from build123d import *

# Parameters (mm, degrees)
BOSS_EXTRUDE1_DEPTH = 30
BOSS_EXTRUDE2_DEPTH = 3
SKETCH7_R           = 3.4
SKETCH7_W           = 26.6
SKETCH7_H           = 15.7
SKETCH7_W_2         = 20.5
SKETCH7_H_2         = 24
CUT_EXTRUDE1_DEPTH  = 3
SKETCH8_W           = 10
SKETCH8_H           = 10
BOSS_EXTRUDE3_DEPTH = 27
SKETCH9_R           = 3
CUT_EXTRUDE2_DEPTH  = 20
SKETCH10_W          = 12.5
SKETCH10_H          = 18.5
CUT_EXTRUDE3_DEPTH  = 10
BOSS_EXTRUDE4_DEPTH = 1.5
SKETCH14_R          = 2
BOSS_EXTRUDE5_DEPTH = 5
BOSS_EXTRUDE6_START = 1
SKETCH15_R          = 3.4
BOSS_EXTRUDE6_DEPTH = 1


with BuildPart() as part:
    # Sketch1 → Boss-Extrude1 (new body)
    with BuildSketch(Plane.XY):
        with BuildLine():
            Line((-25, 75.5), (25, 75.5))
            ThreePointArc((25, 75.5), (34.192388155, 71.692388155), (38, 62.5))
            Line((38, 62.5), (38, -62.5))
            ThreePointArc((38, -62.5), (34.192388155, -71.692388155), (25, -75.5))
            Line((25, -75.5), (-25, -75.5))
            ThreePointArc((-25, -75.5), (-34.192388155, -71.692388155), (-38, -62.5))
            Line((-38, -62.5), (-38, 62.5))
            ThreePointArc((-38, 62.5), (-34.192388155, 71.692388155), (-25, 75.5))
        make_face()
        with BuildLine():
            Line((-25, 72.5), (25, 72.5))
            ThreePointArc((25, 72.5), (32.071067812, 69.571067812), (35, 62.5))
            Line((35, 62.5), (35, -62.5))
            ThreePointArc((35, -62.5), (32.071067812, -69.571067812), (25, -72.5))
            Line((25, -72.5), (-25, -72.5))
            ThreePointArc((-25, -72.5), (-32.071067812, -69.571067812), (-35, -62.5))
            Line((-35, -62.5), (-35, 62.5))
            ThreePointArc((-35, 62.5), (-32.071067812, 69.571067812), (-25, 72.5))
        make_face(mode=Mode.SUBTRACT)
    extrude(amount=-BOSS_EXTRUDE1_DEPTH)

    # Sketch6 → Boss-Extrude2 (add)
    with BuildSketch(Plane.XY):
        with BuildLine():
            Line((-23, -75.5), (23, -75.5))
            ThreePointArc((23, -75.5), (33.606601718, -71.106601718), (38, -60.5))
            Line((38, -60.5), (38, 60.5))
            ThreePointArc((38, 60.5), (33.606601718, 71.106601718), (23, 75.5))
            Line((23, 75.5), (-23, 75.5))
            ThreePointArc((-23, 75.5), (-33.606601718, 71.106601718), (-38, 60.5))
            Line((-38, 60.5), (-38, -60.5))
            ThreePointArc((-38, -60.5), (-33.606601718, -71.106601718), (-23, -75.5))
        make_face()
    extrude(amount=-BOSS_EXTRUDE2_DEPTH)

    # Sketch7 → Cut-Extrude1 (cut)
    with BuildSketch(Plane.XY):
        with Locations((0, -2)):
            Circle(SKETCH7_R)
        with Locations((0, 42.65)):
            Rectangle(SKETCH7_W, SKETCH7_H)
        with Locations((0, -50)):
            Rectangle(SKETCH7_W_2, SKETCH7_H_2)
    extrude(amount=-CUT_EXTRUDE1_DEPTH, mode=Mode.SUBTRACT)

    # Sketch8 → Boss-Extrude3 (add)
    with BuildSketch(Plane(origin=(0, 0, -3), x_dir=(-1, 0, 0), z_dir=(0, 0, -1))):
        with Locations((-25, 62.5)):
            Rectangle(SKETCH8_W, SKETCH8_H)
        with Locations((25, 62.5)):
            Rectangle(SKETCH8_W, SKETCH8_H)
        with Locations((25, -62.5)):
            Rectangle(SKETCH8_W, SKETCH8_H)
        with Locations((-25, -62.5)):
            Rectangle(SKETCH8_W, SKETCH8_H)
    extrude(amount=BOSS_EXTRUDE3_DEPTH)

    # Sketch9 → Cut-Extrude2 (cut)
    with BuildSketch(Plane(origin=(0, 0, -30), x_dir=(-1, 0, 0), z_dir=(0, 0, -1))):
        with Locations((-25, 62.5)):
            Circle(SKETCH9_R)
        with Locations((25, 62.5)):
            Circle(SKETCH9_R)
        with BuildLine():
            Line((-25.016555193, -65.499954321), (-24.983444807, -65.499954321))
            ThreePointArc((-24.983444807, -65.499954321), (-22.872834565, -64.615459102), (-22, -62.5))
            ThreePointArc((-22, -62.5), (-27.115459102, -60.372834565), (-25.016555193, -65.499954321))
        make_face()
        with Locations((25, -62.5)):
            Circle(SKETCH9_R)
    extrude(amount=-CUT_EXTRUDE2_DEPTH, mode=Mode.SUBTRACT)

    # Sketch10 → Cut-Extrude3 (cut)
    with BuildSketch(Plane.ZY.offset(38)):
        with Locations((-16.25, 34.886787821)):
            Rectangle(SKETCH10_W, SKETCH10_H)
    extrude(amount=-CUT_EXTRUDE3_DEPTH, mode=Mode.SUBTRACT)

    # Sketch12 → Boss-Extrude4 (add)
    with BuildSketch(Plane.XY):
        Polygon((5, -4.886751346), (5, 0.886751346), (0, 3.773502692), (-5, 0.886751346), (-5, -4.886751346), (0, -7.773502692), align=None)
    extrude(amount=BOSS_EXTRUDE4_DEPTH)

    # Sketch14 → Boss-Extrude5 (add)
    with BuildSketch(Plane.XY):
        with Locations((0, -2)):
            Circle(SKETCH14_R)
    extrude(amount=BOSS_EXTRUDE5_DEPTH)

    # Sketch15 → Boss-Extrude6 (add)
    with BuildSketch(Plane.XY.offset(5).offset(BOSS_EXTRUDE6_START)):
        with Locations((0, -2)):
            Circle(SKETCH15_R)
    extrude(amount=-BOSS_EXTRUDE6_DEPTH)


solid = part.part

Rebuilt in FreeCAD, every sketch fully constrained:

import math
import FreeCAD as App
import Part
import Sketcher
from FreeCAD import Vector
Q = App.Units.Quantity


def add_polygon(sketch, points):
    """Adds a closed chain of lines whose ends are joined by coincident constraints."""
    first, n = sketch.GeometryCount, len(points)
    for a, b in zip(points, points[1:] + points[:1]):
        sketch.addGeometry(Part.LineSegment(App.Vector(*a, 0), App.Vector(*b, 0)), False)
    for i in range(n):
        sketch.addConstraint(Sketcher.Constraint("Coincident", first + i, 2, first + (i + 1) % n, 1))

doc = App.newDocument("Part")
body = doc.addObject("PartDesign::Body", "Body")

sketch1 = body.newObject("Sketcher::SketchObject", "Sketch")
sketch1.AttachmentSupport = (doc.getObject("XY_Plane"), [""])
sketch1.MapMode = "FlatFace"
sketch1.addGeometry([
    Part.LineSegment(Vector(25, 75.5, 0), Vector(-25, 75.5, 0)),
    Part.ArcOfCircle(Part.Circle(Vector(-25, 62.5, 0), Vector(0, 0, 1), 13), math.radians(90), math.radians(180)),
    Part.LineSegment(Vector(-38, 62.5, 0), Vector(-38, -62.5, 0)),
    Part.ArcOfCircle(Part.Circle(Vector(-25, -62.5, 0), Vector(0, 0, 1), 13), math.radians(-180), math.radians(-90)),
    Part.LineSegment(Vector(-25, -75.5, 0), Vector(25, -75.5, 0)),
    Part.ArcOfCircle(Part.Circle(Vector(25, -62.5, 0), Vector(0, 0, 1), 13), math.radians(-90), math.radians(0)),
    Part.LineSegment(Vector(38, -62.5, 0), Vector(38, 62.5, 0)),
    Part.ArcOfCircle(Part.Circle(Vector(25, 62.5, 0), Vector(0, 0, 1), 13), math.radians(0), math.radians(90)),
    Part.LineSegment(Vector(-25, 72.5, 0), Vector(25, 72.5, 0)),
    Part.ArcOfCircle(Part.Circle(Vector(25, 62.5, 0), Vector(0, 0, 1), 10), math.radians(0), math.radians(90)),
    Part.LineSegment(Vector(35, 62.5, 0), Vector(35, -62.5, 0)),
    Part.ArcOfCircle(Part.Circle(Vector(25, -62.5, 0), Vector(0, 0, 1), 10), math.radians(-90), math.radians(0)),
    Part.LineSegment(Vector(25, -72.5, 0), Vector(-25, -72.5, 0)),
    Part.ArcOfCircle(Part.Circle(Vector(-25, -62.5, 0), Vector(0, 0, 1), 10), math.radians(180), math.radians(270)),
    Part.LineSegment(Vector(-35, -62.5, 0), Vector(-35, 62.5, 0)),
    Part.ArcOfCircle(Part.Circle(Vector(-25, 62.5, 0), Vector(0, 0, 1), 10), math.radians(90), math.radians(180)),
], False)
sketch1.addConstraint([
    Sketcher.Constraint("Tangent", 0, 2, 1, 1),
    Sketcher.Constraint("Tangent", 1, 2, 2, 1),
    Sketcher.Constraint("Tangent", 2, 2, 3, 1),
    Sketcher.Constraint("Tangent", 3, 2, 4, 1),
    Sketcher.Constraint("Tangent", 4, 2, 5, 1),
    Sketcher.Constraint("Tangent", 5, 2, 6, 1),
    Sketcher.Constraint("Tangent", 6, 2, 7, 1),
    Sketcher.Constraint("Tangent", 7, 2, 0, 1),
    Sketcher.Constraint("Tangent", 8, 2, 9, 2),
    Sketcher.Constraint("Tangent", 9, 1, 10, 1),
    Sketcher.Constraint("Tangent", 10, 2, 11, 2),
    Sketcher.Constraint("Tangent", 11, 1, 12, 1),
    Sketcher.Constraint("Tangent", 12, 2, 13, 2),
    Sketcher.Constraint("Tangent", 13, 1, 14, 1),
    Sketcher.Constraint("Tangent", 14, 2, 15, 2),
    Sketcher.Constraint("Tangent", 15, 1, 8, 1),
    Sketcher.Constraint("Horizontal", 0),
    Sketcher.Constraint("Vertical", 2),
    Sketcher.Constraint("Horizontal", 4),
    Sketcher.Constraint("Vertical", 6),
    Sketcher.Constraint("Horizontal", 8),
    Sketcher.Constraint("Vertical", 10),
    Sketcher.Constraint("Horizontal", 12),
    Sketcher.Constraint("Vertical", 14),
    Sketcher.Constraint("Coincident", 9, 3, 7, 3),
    Sketcher.Constraint("Coincident", 11, 3, 5, 3),
    Sketcher.Constraint("Coincident", 13, 3, 3, 3),
    Sketcher.Constraint("Equal", 1, 3),
    Sketcher.Constraint("Equal", 3, 5),
    Sketcher.Constraint("Equal", 5, 7),
    Sketcher.Constraint("Equal", 13, 15),
    Sketcher.Constraint("Symmetric", 1, 3, 5, 3, -1, 1),
    Sketcher.Constraint("Radius", 1, 13.0),
    Sketcher.Constraint("Radius", 9, 10.0),
    Sketcher.Constraint("DistanceX", 0, 2, 0, 1, 50.0),
    Sketcher.Constraint("DistanceY", 2, 2, 2, 1, 125.0),
])
pad1 = body.newObject("PartDesign::Pad", "Pad")
pad1.Profile = sketch1
pad1.Length = 30
pad1.Reversed = True

sketch2 = body.newObject("Sketcher::SketchObject", "Sketch001")
sketch2.AttachmentSupport = (doc.getObject("XY_Plane"), [""])
sketch2.MapMode = "FlatFace"
sketch2.addGeometry([
    Part.LineSegment(Vector(-23, -75.5, 0), Vector(23, -75.5, 0)),
    Part.ArcOfCircle(Part.Circle(Vector(23, -60.5, 0), Vector(0, 0, 1), 15), math.radians(-90), math.radians(0)),
    Part.LineSegment(Vector(38, -60.5, 0), Vector(38, 60.5, 0)),
    Part.ArcOfCircle(Part.Circle(Vector(23, 60.5, 0), Vector(0, 0, 1), 15), math.radians(0), math.radians(90)),
    Part.LineSegment(Vector(23, 75.5, 0), Vector(-23, 75.5, 0)),
    Part.ArcOfCircle(Part.Circle(Vector(-23, 60.5, 0), Vector(0, 0, 1), 15), math.radians(90), math.radians(180)),
    Part.LineSegment(Vector(-38, 60.5, 0), Vector(-38, -60.5, 0)),
    Part.ArcOfCircle(Part.Circle(Vector(-23, -60.5, 0), Vector(0, 0, 1), 15), math.radians(180), math.radians(270)),
], False)
sketch2.addConstraint([
    Sketcher.Constraint("Tangent", 0, 2, 1, 1),
    Sketcher.Constraint("Tangent", 1, 2, 2, 1),
    Sketcher.Constraint("Tangent", 2, 2, 3, 1),
    Sketcher.Constraint("Tangent", 3, 2, 4, 1),
    Sketcher.Constraint("Tangent", 4, 2, 5, 1),
    Sketcher.Constraint("Tangent", 5, 2, 6, 1),
    Sketcher.Constraint("Tangent", 6, 2, 7, 1),
    Sketcher.Constraint("Tangent", 7, 2, 0, 1),
    Sketcher.Constraint("Horizontal", 0),
    Sketcher.Constraint("Vertical", 2),
    Sketcher.Constraint("Horizontal", 4),
    Sketcher.Constraint("Vertical", 6),
    Sketcher.Constraint("Equal", 1, 3),
    Sketcher.Constraint("Equal", 3, 5),
    Sketcher.Constraint("Equal", 5, 7),
    Sketcher.Constraint("Symmetric", 1, 3, 5, 3, -1, 1),
    Sketcher.Constraint("Radius", 1, 15.0),
    Sketcher.Constraint("DistanceX", 0, 1, 0, 2, 46.0),
    Sketcher.Constraint("DistanceY", 2, 1, 2, 2, 121.0),
])
pad2 = body.newObject("PartDesign::Pad", "Pad001")
pad2.Profile = sketch2
pad2.Length = 3
pad2.Reversed = True

sketch3 = body.newObject("Sketcher::SketchObject", "Sketch002")
sketch3.AttachmentSupport = (doc.getObject("XY_Plane"), [""])
sketch3.MapMode = "FlatFace"
sketch3.addGeometry(Part.Circle(Vector(0, -2, 0), Vector(0, 0, 1), 3.4), False)
add_polygon(sketch3, [(-13.3, 50.5), (-13.3, 34.8), (13.3, 34.8), (13.3, 50.5)])
add_polygon(sketch3, [(-10.25, -38), (-10.25, -62), (10.25, -62), (10.25, -38)])
sketch3.addConstraint([
    Sketcher.Constraint("Vertical", 1),
    Sketcher.Constraint("Horizontal", 2),
    Sketcher.Constraint("Vertical", 3),
    Sketcher.Constraint("Horizontal", 4),
    Sketcher.Constraint("Vertical", 5),
    Sketcher.Constraint("Horizontal", 6),
    Sketcher.Constraint("Vertical", 7),
    Sketcher.Constraint("Horizontal", 8),
    Sketcher.Constraint("PointOnObject", 0, 3, -2),
    Sketcher.Constraint("Diameter", 0, 6.8),
    Sketcher.Constraint("DistanceY", 5, 2, 5, 1, 24.0),
    Sketcher.Constraint("DistanceX", 2, 1, 2, 2, 26.6),
    Sketcher.Constraint("DistanceX", 6, 1, 6, 2, 20.5),
    Sketcher.Constraint("DistanceY", 1, 2, 1, 1, 15.7),
    Sketcher.Constraint("DistanceY", 0, 3, -1, 1, 2.0),
    Sketcher.Constraint("DistanceY", 5, 2, -1, 1, 62.0),
    Sketcher.Constraint("DistanceX", 1, 2, -1, 1, 13.3),
    Sketcher.Constraint("DistanceY", -1, 1, 1, 2, 34.8),
    Sketcher.Constraint("DistanceX", 5, 2, -1, 1, 10.25),
])
pocket1 = body.newObject("PartDesign::Pocket", "Pocket")
pocket1.Profile = sketch3
pocket1.Length = 3

sketch4 = body.newObject("Sketcher::SketchObject", "Sketch003")
sketch4.AttachmentSupport = (doc.getObject("XY_Plane"), [""])
sketch4.MapMode = "FlatFace"
sketch4.AttachmentOffset = App.Placement(Vector(0, 0, -3), App.Rotation())
add_polygon(sketch4, [(30, 67.5), (30, 57.5), (20, 57.5), (20, 67.5)])
add_polygon(sketch4, [(-20, 67.5), (-20, 57.5), (-30, 57.5), (-30, 67.5)])
add_polygon(sketch4, [(-20, -57.5), (-20, -67.5), (-30, -67.5), (-30, -57.5)])
add_polygon(sketch4, [(30, -57.5), (30, -67.5), (20, -67.5), (20, -57.5)])
sketch4.addConstraint([
    Sketcher.Constraint("Vertical", 0),
    Sketcher.Constraint("Horizontal", 1),
    Sketcher.Constraint("Vertical", 2),
    Sketcher.Constraint("Horizontal", 3),
    Sketcher.Constraint("Vertical", 4),
    Sketcher.Constraint("Horizontal", 5),
    Sketcher.Constraint("Vertical", 6),
    Sketcher.Constraint("Horizontal", 7),
    Sketcher.Constraint("Vertical", 8),
    Sketcher.Constraint("Horizontal", 9),
    Sketcher.Constraint("Vertical", 10),
    Sketcher.Constraint("Horizontal", 11),
    Sketcher.Constraint("Vertical", 12),
    Sketcher.Constraint("Horizontal", 13),
    Sketcher.Constraint("Vertical", 14),
    Sketcher.Constraint("Horizontal", 15),
    Sketcher.Constraint("Symmetric", 2, 2, 8, 2, -1, 1),
    Sketcher.Constraint("Symmetric", 0, 2, 10, 2, -1, 1),
    Sketcher.Constraint("Symmetric", 6, 2, 12, 2, -1, 1),
    Sketcher.Constraint("Symmetric", 4, 2, 14, 2, -1, 1),
    Sketcher.Constraint("Symmetric", 1, 2, 4, 2, -2),
    Sketcher.Constraint("Symmetric", 3, 2, 6, 2, -2),
    Sketcher.Constraint("Equal", 15, 0),
    Sketcher.Constraint("DistanceX", 1, 2, 1, 1, 10.0),
    Sketcher.Constraint("DistanceX", -1, 1, 0, 2, 30.0),
    Sketcher.Constraint("DistanceY", 8, 2, 4, 2, 125.0),
])
pad3 = body.newObject("PartDesign::Pad", "Pad002")
pad3.Profile = sketch4
pad3.Length = 27
pad3.Reversed = True

sketch5 = body.newObject("Sketcher::SketchObject", "Sketch004")
sketch5.AttachmentSupport = (doc.getObject("XY_Plane"), [""])
sketch5.MapMode = "FlatFace"
sketch5.AttachmentOffset = App.Placement(Vector(0, 0, -30), App.Rotation())
sketch5.addGeometry([
    Part.Circle(Vector(25, 62.5, 0), Vector(0, 0, 1), 3),
    Part.Circle(Vector(-25, 62.5, 0), Vector(0, 0, 1), 3),
    Part.LineSegment(Vector(25.016555, -65.499954, 0), Vector(24.983445, -65.499954, 0)),
    Part.ArcOfCircle(Part.Circle(Vector(25, -62.5, 0), Vector(0, 0, 1), 3), math.radians(180), math.radians(269.683817)),
    Part.ArcOfCircle(Part.Circle(Vector(25, -62.5, 0), Vector(0, 0, 1), 3), math.radians(-89.683817), math.radians(180)),
    Part.Circle(Vector(-25, -62.5, 0), Vector(0, 0, 1), 3),
], False)
sketch5.addConstraint([
    Sketcher.Constraint("Coincident", 2, 2, 3, 2),
    Sketcher.Constraint("Tangent", 3, 1, 4, 2),
    Sketcher.Constraint("Coincident", 4, 1, 2, 1),
    Sketcher.Constraint("Horizontal", 2),
    Sketcher.Constraint("Equal", 0, 1),
    Sketcher.Constraint("Equal", 1, 3),
    Sketcher.Constraint("Equal", 3, 4),
    Sketcher.Constraint("Equal", 4, 5),
    Sketcher.Constraint("Symmetric", 1, 3, 3, 3, -1, 1),
    Sketcher.Constraint("Symmetric", 0, 3, 5, 3, -1, 1),
    Sketcher.Constraint("Symmetric", 0, 3, 1, 3, -2),
    Sketcher.Constraint("Horizontal", 5, 3, 3, 1),
    Sketcher.Constraint("Diameter", 0, 6.0),
    Sketcher.Constraint("DistanceX", -1, 1, 0, 3, 25.0),
    Sketcher.Constraint("DistanceY", 3, 3, 0, 3, 125.0),
    Sketcher.Constraint("DistanceX", 2, 2, 2, 1, 0.03311),
])
pocket2 = body.newObject("PartDesign::Pocket", "Pocket001")
pocket2.Profile = sketch5
pocket2.Length = 20
pocket2.Reversed = True

sketch6 = body.newObject("Sketcher::SketchObject", "Sketch005")
sketch6.AttachmentSupport = (doc.getObject("YZ_Plane"), [""])
sketch6.MapMode = "FlatFace"
sketch6.AttachmentOffset = App.Placement(Vector(0, 0, -38), App.Rotation())
add_polygon(sketch6, [(44.136788, -22.5), (25.636788, -22.5), (25.636788, -10), (44.136788, -10)])
sketch6.addConstraint([
    Sketcher.Constraint("Horizontal", 0),
    Sketcher.Constraint("Vertical", 1),
    Sketcher.Constraint("Horizontal", 2),
    Sketcher.Constraint("Vertical", 3),
    Sketcher.Constraint("DistanceX", 0, 2, 0, 1, 18.5),
    Sketcher.Constraint("DistanceY", 1, 1, 1, 2, 12.5),
    Sketcher.Constraint("DistanceY", 1, 2, -1, 1, 10.0),
    Sketcher.Constraint("DistanceX", -1, 1, 0, 2, 25.636788),
])
pocket3 = body.newObject("PartDesign::Pocket", "Pocket002")
pocket3.Profile = sketch6
pocket3.Length = 10
pocket3.Reversed = True

sketch7 = body.newObject("Sketcher::SketchObject", "Sketch006")
sketch7.AttachmentSupport = (doc.getObject("XY_Plane"), [""])
sketch7.MapMode = "FlatFace"
add_polygon(sketch7, [(5, -4.886751), (5, 0.886751), (0, 3.773503), (-5, 0.886751), (-5, -4.886751), (0, -7.773503)])
sketch7.addConstraint([
    Sketcher.Constraint("Vertical", 0),
    Sketcher.Constraint("Vertical", 3),
    Sketcher.Constraint("Symmetric", 0, 2, 2, 2, -2),
    Sketcher.Constraint("PointOnObject", 1, 2, -2),
    Sketcher.Constraint("PointOnObject", 4, 2, -2),
    Sketcher.Constraint("Parallel", 1, 4),
    Sketcher.Constraint("Parallel", 2, 5),
    Sketcher.Constraint("Angle", 1, Q("150 deg")),
    Sketcher.Constraint("DistanceX", -1, 1, 0, 2, 5.0),
    Sketcher.Constraint("DistanceY", 0, 1, 0, 2, 5.773503),
    Sketcher.Constraint("DistanceY", -1, 1, 0, 2, 0.886751),
])
pad4 = body.newObject("PartDesign::Pad", "Pad003")
pad4.Profile = sketch7
pad4.Length = 1.5

sketch8 = body.newObject("Sketcher::SketchObject", "Sketch007")
sketch8.AttachmentSupport = (doc.getObject("XY_Plane"), [""])
sketch8.MapMode = "FlatFace"
sketch8.addGeometry(Part.Circle(Vector(0, -2, 0), Vector(0, 0, 1), 2), False)
sketch8.addConstraint([
    Sketcher.Constraint("PointOnObject", 0, 3, -2),
    Sketcher.Constraint("Diameter", 0, 4.0),
    Sketcher.Constraint("DistanceY", 0, 3, -1, 1, 2.0),
])
pad5 = body.newObject("PartDesign::Pad", "Pad004")
pad5.Profile = sketch8
pad5.Length = 5

sketch9 = body.newObject("Sketcher::SketchObject", "Sketch008")
sketch9.AttachmentSupport = (doc.getObject("XY_Plane"), [""])
sketch9.MapMode = "FlatFace"
sketch9.AttachmentOffset = App.Placement(Vector(0, 0, 6), App.Rotation())
sketch9.addGeometry(Part.Circle(Vector(0, -2, 0), Vector(0, 0, 1), 3.4), False)
sketch9.addConstraint([
    Sketcher.Constraint("PointOnObject", 0, 3, -2),
    Sketcher.Constraint("Diameter", 0, 6.8),
    Sketcher.Constraint("DistanceY", 0, 3, -1, 1, 2.0),
])
pad6 = body.newObject("PartDesign::Pad", "Pad005")
pad6.Profile = sketch9
pad6.Length = 1
pad6.Reversed = True

doc.recompute()
